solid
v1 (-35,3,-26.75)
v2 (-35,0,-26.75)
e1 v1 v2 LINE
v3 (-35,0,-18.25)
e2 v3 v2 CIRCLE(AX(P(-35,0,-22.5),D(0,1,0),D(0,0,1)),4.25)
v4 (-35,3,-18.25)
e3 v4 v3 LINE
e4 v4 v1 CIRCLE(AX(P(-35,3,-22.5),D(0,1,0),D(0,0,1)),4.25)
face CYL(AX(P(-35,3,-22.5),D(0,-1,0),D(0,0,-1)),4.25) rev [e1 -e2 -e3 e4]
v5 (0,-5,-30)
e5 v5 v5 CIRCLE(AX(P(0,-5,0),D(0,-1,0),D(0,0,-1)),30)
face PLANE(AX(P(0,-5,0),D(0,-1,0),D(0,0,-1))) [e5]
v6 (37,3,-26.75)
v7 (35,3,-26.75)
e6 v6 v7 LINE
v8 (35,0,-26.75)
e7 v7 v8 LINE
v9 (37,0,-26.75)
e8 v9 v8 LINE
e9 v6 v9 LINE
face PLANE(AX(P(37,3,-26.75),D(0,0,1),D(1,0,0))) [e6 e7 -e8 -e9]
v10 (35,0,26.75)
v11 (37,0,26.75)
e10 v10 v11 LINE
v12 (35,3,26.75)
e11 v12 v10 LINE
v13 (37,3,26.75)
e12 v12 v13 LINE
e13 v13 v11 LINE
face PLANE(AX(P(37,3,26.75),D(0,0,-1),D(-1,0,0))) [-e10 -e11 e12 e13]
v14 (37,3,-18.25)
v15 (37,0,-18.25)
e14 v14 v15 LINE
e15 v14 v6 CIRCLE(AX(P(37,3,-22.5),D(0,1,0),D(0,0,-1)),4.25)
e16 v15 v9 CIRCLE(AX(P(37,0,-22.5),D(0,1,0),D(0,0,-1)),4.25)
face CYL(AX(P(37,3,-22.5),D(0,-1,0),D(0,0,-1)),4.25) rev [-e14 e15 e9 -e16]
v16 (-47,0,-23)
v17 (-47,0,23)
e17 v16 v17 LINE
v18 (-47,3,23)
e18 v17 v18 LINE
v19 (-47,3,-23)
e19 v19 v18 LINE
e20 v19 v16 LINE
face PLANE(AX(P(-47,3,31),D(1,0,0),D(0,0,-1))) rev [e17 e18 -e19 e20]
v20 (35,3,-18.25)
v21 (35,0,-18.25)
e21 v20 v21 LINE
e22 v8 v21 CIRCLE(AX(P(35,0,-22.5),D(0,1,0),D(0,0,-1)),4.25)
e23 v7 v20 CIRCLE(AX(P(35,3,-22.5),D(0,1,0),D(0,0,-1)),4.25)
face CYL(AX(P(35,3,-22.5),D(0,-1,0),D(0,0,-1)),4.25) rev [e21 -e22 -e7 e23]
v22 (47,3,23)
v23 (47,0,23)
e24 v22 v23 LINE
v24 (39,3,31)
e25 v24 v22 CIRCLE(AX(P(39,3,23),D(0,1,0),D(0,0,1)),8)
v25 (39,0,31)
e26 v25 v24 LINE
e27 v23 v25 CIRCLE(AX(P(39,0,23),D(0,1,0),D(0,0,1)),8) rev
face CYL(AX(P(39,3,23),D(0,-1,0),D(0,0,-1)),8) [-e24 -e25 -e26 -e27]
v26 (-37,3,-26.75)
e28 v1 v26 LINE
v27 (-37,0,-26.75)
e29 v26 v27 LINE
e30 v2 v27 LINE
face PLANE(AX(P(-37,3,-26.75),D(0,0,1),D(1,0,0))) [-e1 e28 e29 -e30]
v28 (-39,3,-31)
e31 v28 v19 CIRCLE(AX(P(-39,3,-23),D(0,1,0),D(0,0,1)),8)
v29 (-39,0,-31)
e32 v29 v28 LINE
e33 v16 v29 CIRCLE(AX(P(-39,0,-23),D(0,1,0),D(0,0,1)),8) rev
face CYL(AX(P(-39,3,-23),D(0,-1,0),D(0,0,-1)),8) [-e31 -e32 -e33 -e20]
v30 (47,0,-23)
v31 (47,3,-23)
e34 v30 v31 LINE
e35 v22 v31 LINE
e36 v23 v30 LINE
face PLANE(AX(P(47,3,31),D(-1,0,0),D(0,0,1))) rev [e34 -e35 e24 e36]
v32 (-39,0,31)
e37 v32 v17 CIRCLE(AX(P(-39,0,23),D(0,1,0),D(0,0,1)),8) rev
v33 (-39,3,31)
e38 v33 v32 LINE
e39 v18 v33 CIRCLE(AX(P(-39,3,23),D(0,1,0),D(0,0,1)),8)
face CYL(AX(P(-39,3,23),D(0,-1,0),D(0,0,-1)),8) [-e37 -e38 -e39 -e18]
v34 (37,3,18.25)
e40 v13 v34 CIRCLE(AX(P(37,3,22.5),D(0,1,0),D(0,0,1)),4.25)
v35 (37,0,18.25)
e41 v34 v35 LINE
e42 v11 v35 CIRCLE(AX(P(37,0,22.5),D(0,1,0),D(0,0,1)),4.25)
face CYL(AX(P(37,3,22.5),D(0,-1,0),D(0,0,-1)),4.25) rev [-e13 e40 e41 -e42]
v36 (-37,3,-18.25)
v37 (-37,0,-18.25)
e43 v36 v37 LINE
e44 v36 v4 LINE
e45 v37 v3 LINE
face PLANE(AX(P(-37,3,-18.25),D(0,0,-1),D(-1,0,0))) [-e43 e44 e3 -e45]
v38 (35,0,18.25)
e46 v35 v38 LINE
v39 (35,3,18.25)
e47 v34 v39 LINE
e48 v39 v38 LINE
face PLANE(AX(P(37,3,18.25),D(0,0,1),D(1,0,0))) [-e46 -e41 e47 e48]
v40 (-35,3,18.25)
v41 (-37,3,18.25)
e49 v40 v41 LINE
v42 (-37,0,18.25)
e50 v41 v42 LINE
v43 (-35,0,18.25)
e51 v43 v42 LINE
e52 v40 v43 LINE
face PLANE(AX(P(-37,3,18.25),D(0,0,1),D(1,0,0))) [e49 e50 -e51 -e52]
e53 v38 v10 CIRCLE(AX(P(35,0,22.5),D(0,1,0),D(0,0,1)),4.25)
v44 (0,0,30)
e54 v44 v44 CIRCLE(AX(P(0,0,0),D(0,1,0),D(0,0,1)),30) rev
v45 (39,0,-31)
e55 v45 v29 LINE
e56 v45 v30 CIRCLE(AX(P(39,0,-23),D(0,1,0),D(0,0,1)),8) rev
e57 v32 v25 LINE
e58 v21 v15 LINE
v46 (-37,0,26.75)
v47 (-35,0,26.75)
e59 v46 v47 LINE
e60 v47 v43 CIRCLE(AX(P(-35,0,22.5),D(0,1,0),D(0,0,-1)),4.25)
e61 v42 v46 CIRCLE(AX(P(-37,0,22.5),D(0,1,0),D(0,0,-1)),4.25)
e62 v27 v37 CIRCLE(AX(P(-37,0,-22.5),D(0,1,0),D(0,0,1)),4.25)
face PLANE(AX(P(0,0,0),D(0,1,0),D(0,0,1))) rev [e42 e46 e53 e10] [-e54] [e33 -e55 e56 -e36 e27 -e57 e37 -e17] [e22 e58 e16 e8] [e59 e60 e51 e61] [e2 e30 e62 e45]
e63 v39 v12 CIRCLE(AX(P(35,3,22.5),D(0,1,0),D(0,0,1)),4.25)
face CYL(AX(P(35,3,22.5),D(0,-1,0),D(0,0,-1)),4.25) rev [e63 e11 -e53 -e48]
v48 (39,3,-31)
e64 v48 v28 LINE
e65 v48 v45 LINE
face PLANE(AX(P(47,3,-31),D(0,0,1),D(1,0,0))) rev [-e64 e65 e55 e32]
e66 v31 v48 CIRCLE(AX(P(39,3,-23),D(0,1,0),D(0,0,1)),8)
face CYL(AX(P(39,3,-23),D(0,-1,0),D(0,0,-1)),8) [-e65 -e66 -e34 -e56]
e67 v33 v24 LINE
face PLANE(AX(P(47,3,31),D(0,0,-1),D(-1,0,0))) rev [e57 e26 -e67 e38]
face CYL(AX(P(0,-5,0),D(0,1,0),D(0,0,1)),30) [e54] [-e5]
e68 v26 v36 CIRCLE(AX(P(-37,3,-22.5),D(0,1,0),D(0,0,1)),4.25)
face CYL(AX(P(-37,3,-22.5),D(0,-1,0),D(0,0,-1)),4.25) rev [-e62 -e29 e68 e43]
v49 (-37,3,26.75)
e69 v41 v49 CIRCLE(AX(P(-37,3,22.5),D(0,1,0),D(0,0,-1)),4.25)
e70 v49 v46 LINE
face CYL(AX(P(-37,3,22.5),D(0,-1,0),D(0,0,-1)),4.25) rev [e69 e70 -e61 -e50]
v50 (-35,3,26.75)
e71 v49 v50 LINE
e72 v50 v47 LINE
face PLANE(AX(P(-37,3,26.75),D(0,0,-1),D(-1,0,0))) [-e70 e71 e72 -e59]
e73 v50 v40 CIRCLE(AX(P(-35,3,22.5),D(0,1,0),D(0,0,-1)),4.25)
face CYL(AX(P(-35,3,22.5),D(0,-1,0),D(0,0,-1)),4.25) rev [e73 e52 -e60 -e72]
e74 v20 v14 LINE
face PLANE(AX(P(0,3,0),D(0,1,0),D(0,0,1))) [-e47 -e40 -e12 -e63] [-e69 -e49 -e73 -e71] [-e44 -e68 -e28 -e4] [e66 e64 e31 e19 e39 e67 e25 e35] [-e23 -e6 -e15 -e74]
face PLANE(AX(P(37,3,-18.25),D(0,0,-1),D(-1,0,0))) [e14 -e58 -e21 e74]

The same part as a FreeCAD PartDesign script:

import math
import FreeCAD as App
import Part
import Sketcher
from FreeCAD import Vector
Q = App.Units.Quantity


def edges_at(feature, points):
    """Names of the edges that pass closest to the given points."""
    edges = feature.Shape.Edges
    near = lambda p: min(range(len(edges)), key=lambda i: edges[i].distToShape(Part.Vertex(*p))[0])
    return sorted({f"Edge{near(p) + 1}" for p in points})


def add_polygon(sketch, points):
    """Adds a closed chain of lines whose ends are joined by coincident constraints."""
    first, n = sketch.GeometryCount, len(points)
    for a, b in zip(points, points[1:] + points[:1]):
        sketch.addGeometry(Part.LineSegment(App.Vector(*a, 0), App.Vector(*b, 0)), False)
    for i in range(n):
        sketch.addConstraint(Sketcher.Constraint("Coincident", first + i, 2, first + (i + 1) % n, 1))

doc = App.newDocument("Part")
params = doc.addObject("Spreadsheet::Sheet", "Params")
for row, (alias, value) in enumerate([
    ("sketch1_width", "94 mm"),
    ("sketch1_width2", "2 mm"),
    ("sketch1_height", "62 mm"),
    ("sketch1_radius", "4.25 mm"),
    ("pad1_length", "3 mm"),
    ("fillet_radius", "8 mm"),
    ("sketch2_diameter", "60 mm"),
    ("pad2_length", "5 mm"),
], start=1):
    params.set(f"A{row}", alias)
    params.set(f"B{row}", "=" + value)
    params.setAlias(f"B{row}", alias)

body = doc.addObject("PartDesign::Body", "Body")

sketch1 = doc.addObject("Sketcher::SketchObject", "Sketch")
body.addObject(sketch1)
sketch1.AttachmentSupport = (doc.XZ_Plane, [""])
sketch1.MapMode = "FlatFace"
add_polygon(sketch1, [(-47, -31), (-47, 31), (47, 31), (47, -31)])
sketch1.addGeometry(Part.LineSegment(Vector(-35, 26.8, 0), Vector(-37, 26.8, 0)), False)
sketch1.addGeometry(Part.ArcOfCircle(Part.Circle(Vector(-37, 22.5, 0), Vector(0, 0, 1), 4.2), math.radians(90), math.radians(270)), False)
sketch1.addGeometry(Part.LineSegment(Vector(-37, 18.2, 0), Vector(-35, 18.2, 0)), False)
sketch1.addGeometry(Part.ArcOfCircle(Part.Circle(Vector(-35, 22.5, 0), Vector(0, 0, 1), 4.2), math.radians(-90), math.radians(90)), False)
sketch1.addGeometry(Part.ArcOfCircle(Part.Circle(Vector(37, 22.5, 0), Vector(0, 0, 1), 4.2), math.radians(-90), math.radians(90)), False)
sketch1.addGeometry(Part.LineSegment(Vector(37, 26.8, 0), Vector(35, 26.8, 0)), False)
sketch1.addGeometry(Part.ArcOfCircle(Part.Circle(Vector(35, 22.5, 0), Vector(0, 0, 1), 4.2), math.radians(90), math.radians(270)), False)
sketch1.addGeometry(Part.LineSegment(Vector(35, 18.2, 0), Vector(37, 18.2, 0)), False)
sketch1.addGeometry(Part.ArcOfCircle(Part.Circle(Vector(-37, -22.5, 0), Vector(0, 0, 1), 4.2), math.radians(90), math.radians(270)), False)
sketch1.addGeometry(Part.LineSegment(Vector(-37, -26.8, 0), Vector(-35, -26.8, 0)), False)
sketch1.addGeometry(Part.ArcOfCircle(Part.Circle(Vector(-35, -22.5, 0), Vector(0, 0, 1), 4.2), math.radians(-90), math.radians(90)), False)
sketch1.addGeometry(Part.LineSegment(Vector(-35, -18.2, 0), Vector(-37, -18.2, 0)), False)
sketch1.addGeometry(Part.LineSegment(Vector(35, -26.8, 0), Vector(37, -26.8, 0)), False)
sketch1.addGeometry(Part.ArcOfCircle(Part.Circle(Vector(37, -22.5, 0), Vector(0, 0, 1), 4.2), math.radians(-90), math.radians(90)), False)
sketch1.addGeometry(Part.LineSegment(Vector(37, -18.2, 0), Vector(35, -18.2, 0)), False)
sketch1.addGeometry(Part.ArcOfCircle(Part.Circle(Vector(35, -22.5, 0), Vector(0, 0, 1), 4.2), math.radians(90), math.radians(270)), False)
sketch1.addConstraint(Sketcher.Constraint("Tangent", 4, 2, 5, 1))
sketch1.addConstraint(Sketcher.Constraint("Tangent", 5, 2, 6, 1))
sketch1.addConstraint(Sketcher.Constraint("Tangent", 6, 2, 7, 1))
sketch1.addConstraint(Sketcher.Constraint("Tangent", 7, 2, 4, 1))
sketch1.addConstraint(Sketcher.Constraint("Tangent", 8, 2, 9, 1))
sketch1.addConstraint(Sketcher.Constraint("Tangent", 9, 2, 10, 1))
sketch1.addConstraint(Sketcher.Constraint("Tangent", 10, 2, 11, 1))
sketch1.addConstraint(Sketcher.Constraint("Tangent", 11, 2, 8, 1))
sketch1.addConstraint(Sketcher.Constraint("Tangent", 12, 2, 13, 1))
sketch1.addConstraint(Sketcher.Constraint("Tangent", 13, 2, 14, 1))
sketch1.addConstraint(Sketcher.Constraint("Tangent", 14, 2, 15, 1))
sketch1.addConstraint(Sketcher.Constraint("Tangent", 15, 2, 12, 1))
sketch1.addConstraint(Sketcher.Constraint("Tangent", 16, 2, 17, 1))
sketch1.addConstraint(Sketcher.Constraint("Tangent", 17, 2, 18, 1))
sketch1.addConstraint(Sketcher.Constraint("Tangent", 18, 2, 19, 1))
sketch1.addConstraint(Sketcher.Constraint("Tangent", 19, 2, 16, 1))
sketch1.addConstraint(Sketcher.Constraint("Vertical", 0))
sketch1.addConstraint(Sketcher.Constraint("Horizontal", 1))
sketch1.addConstraint(Sketcher.Constraint("Vertical", 2))
sketch1.addConstraint(Sketcher.Constraint("Horizontal", 3))
sketch1.addConstraint(Sketcher.Constraint("Horizontal", 4))
sketch1.addConstraint(Sketcher.Constraint("Horizontal", 6))
sketch1.addConstraint(Sketcher.Constraint("Horizontal", 9))
sketch1.addConstraint(Sketcher.Constraint("Horizontal", 11))
sketch1.addConstraint(Sketcher.Constraint("Horizontal", 13))
sketch1.addConstraint(Sketcher.Constraint("Horizontal", 15))
sketch1.addConstraint(Sketcher.Constraint("Horizontal", 16))
sketch1.addConstraint(Sketcher.Constraint("Horizontal", 18))
sketch1.addConstraint(Sketcher.Constraint("Equal", 7, 8))
sketch1.addConstraint(Sketcher.Constraint("Equal", 10, 12))
sketch1.addConstraint(Sketcher.Constraint("Equal", 14, 17))
sketch1.addConstraint(Sketcher.Constraint("Symmetric", 8, 3, 12, 3, -1, 1))
sketch1.addConstraint(Sketcher.Constraint("Symmetric", 5, 3, 17, 3, -1, 1))
sketch1.addConstraint(Sketcher.Constraint("Symmetric", 0, 2, 2, 2, -1, 1))
sketch1.addConstraint(Sketcher.Constraint("Symmetric", 5, 3, 8, 3, -2))
sketch1.addConstraint(Sketcher.Constraint("Vertical", 7, 3, 14, 3))
sketch1.addConstraint(Sketcher.Constraint("Vertical", 10, 3, 19, 3))
sketch1.addConstraint(Sketcher.Constraint("Equal", 6, 9))
sketch1.addConstraint(Sketcher.Constraint("DistanceX", 1, 1, 1, 2, Q("94 mm")))
sketch1.addConstraint(Sketcher.Constraint("DistanceX", 4, 2, 4, 1, Q("2 mm")))
sketch1.addConstraint(Sketcher.Constraint("DistanceY", 0, 1, 0, 2, Q("62 mm")))
sketch1.addConstraint(Sketcher.Constraint("Radius", 5, Q("4.25 mm")))
sketch1.addConstraint(Sketcher.Constraint("DistanceX", 5, 3, -1, 1, Q("37 mm")))
sketch1.addConstraint(Sketcher.Constraint("DistanceY", 12, 3, 5, 3, Q("45 mm")))
sketch1.setExpression("Constraints[42]", "Params.sketch1_width")
sketch1.setExpression("Constraints[43]", "Params.sketch1_width2")
sketch1.setExpression("Constraints[44]", "Params.sketch1_height")
sketch1.setExpression("Constraints[45]", "Params.sketch1_radius")
pad1 = doc.addObject("PartDesign::Pad", "Pad")
body.addObject(pad1)
pad1.Profile = sketch1
pad1.setExpression("Length", "Params.pad1_length")
pad1.Reversed = True
doc.recompute()

fillet = doc.addObject("PartDesign::Fillet", "Fillet")
body.addObject(fillet)
fillet.Base = (pad1, edges_at(pad1, [
    (-47, 1.5, -31),
    (47, 1.5, -31),
    (47, 1.5, 31),
    (-47, 1.5, 31),
]))
fillet.setExpression("Radius", "Params.fillet_radius")

sketch2 = doc.addObject("Sketcher::SketchObject", "Sketch001")
body.addObject(sketch2)
sketch2.AttachmentSupport = (doc.XZ_Plane, [""])
sketch2.MapMode = "FlatFace"
sketch2.addGeometry(Part.Circle(Vector(0, 0, 0), Vector(0, 0, 1), 30), False)
sketch2.addConstraint(Sketcher.Constraint("Coincident", 0, 3, -1, 1))
sketch2.addConstraint(Sketcher.Constraint("Diameter", 0, Q("60 mm")))
sketch2.setExpression("Constraints[1]", "Params.sketch2_diameter")
pad2 = doc.addObject("PartDesign::Pad", "Pad001")
body.addObject(pad2)
pad2.Profile = sketch2
pad2.setExpression("Length", "Params.pad2_length")

doc.recompute()
